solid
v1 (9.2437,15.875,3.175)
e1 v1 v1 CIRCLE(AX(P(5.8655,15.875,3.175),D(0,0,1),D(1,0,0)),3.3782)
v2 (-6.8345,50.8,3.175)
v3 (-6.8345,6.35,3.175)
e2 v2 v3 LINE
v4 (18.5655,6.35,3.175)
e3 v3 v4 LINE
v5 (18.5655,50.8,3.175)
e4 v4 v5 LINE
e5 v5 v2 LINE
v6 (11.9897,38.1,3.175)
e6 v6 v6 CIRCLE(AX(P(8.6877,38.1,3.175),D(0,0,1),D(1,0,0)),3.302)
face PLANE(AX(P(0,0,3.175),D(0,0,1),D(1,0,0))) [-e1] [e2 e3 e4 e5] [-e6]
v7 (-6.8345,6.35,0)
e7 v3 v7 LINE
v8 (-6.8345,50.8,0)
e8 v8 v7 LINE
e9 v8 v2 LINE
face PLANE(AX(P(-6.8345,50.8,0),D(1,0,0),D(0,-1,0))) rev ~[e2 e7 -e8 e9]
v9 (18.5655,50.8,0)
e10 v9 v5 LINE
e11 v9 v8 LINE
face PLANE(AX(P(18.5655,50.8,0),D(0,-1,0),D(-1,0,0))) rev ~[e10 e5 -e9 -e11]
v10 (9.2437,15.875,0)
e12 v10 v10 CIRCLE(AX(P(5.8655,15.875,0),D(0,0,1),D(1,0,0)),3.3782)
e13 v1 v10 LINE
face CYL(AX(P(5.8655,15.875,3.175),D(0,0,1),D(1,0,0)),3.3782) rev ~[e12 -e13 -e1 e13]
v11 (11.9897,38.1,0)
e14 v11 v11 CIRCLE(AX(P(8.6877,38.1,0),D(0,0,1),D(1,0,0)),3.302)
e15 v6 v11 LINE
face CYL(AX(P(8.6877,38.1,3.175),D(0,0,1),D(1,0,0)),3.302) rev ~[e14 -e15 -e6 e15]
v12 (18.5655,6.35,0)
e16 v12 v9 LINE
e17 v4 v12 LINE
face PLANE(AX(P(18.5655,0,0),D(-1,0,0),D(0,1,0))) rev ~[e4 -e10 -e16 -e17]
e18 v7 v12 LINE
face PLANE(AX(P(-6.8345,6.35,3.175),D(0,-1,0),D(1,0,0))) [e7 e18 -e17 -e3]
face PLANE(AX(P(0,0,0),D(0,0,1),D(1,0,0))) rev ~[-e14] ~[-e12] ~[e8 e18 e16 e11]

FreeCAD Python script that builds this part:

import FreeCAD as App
import Part
import Sketcher
from FreeCAD import Vector
Q = App.Units.Quantity


def add_polygon(sketch, points):
    """Adds a closed chain of lines whose ends are joined by coincident constraints."""
    first, n = sketch.GeometryCount, len(points)
    for a, b in zip(points, points[1:] + points[:1]):
        sketch.addGeometry(Part.LineSegment(App.Vector(*a, 0), App.Vector(*b, 0)), False)
    for i in range(n):
        sketch.addConstraint(Sketcher.Constraint("Coincident", first + i, 2, first + (i + 1) % n, 1))

doc = App.newDocument("Part")
params = doc.addObject("Spreadsheet::Sheet", "Params")
for row, (alias, value) in enumerate([
    ("sketch1_width", "1 in"),
    ("sketch1_height", "2 in"),
    ("pad1_length", "0.125 in"),
    ("sketch2_diameter", "0.26 in"),
    ("sketch2_diameter2", "0.266 in"),
    ("pocket1_length", "1 in"),
    ("sketch3_height", "0.25 in"),
    ("sketch3_width", "1 in"),
    ("pocket2_length", "1 in"),
], start=1):
    params.set(f"A{row}", alias)
    params.set(f"B{row}", "=" + value)
    params.setAlias(f"B{row}", alias)

body = doc.addObject("PartDesign::Body", "Body")

# Sketch on XY plane
sketch1 = body.newObject("Sketcher::SketchObject", "Sketch")
sketch1.AttachmentSupport = (doc.getObject("XY_Plane"), [""])
sketch1.MapMode = "FlatFace"
add_polygon(sketch1, [(-7, 0), (19, 0), (19, 51), (-7, 51)])  # lines 0-3
sketch1.addConstraint([
    Sketcher.Constraint("Horizontal", 0),
    Sketcher.Constraint("Vertical", 1),
    Sketcher.Constraint("Horizontal", 2),
    Sketcher.Constraint("Vertical", 3),
    Sketcher.Constraint("PointOnObject", 0, 2, -1),
    Sketcher.Constraint("DistanceX", 0, 1, 0, 2, Q("1 in")),
    Sketcher.Constraint("DistanceY", 1, 1, 1, 2, Q("2 in")),
    Sketcher.Constraint("DistanceX", -1, 1, 0, 2, 18.5655),
])
sketch1.setExpression("Constraints[9]", "Params.sketch1_width")
sketch1.setExpression("Constraints[10]", "Params.sketch1_height")
pad1 = body.newObject("PartDesign::Pad", "Pad")
pad1.Profile = sketch1
pad1.setExpression("Length", "Params.pad1_length")

# Sketch on XY plane
sketch2 = body.newObject("Sketcher::SketchObject", "Sketch001")
sketch2.AttachmentSupport = (doc.getObject("XY_Plane"), [""])
sketch2.MapMode = "FlatFace"
sketch2.AttachmentOffset = App.Placement(Vector(0, 0, 0.125 * 25.4), App.Rotation())
sketch2.addGeometry([
    Part.Circle(Vector(5.9, 15.9, 0), Vector(0, 0, 1), 3.4),
    Part.Circle(Vector(8.7, 38.1, 0), Vector(0, 0, 1), 3.3),
], False)
sketch2.addConstraint([
    Sketcher.Constraint("Diameter", 1, Q("0.26 in")),
    Sketcher.Constraint("Diameter", 0, Q("0.266 in")),
    Sketcher.Constraint("DistanceY", -1, 1, 1, 3, Q("1.5 in")),
    Sketcher.Constraint("DistanceY", -1, 1, 0, 3, Q("0.625 in")),
    Sketcher.Constraint("DistanceX", 0, 3, 1, 3, Q("0.1111 in")),
    Sketcher.Constraint("DistanceX", -1, 1, 0, 3, 5.8655),
])
sketch2.setExpression("Constraints[0]", "Params.sketch2_diameter")
sketch2.setExpression("Constraints[1]", "Params.sketch2_diameter2")
pocket1 = body.newObject("PartDesign::Pocket", "Pocket")
pocket1.Profile = sketch2
pocket1.setExpression("Length", "Params.pocket1_length")

# Sketch on XY plane
sketch3 = body.newObject("Sketcher::SketchObject", "Sketch002")
sketch3.AttachmentSupport = (doc.getObject("XY_Plane"), [""])
sketch3.MapMode = "FlatFace"
sketch3.AttachmentOffset = App.Placement(Vector(0, 0, 0.125 * 25.4), App.Rotation())
add_polygon(sketch3, [(-7, 6), (-7, 0), (19, 0), (19, 6)])  # lines 0-3
sketch3.addConstraint([
    Sketcher.Constraint("Vertical", 0),
    Sketcher.Constraint("Horizontal", 1),
    Sketcher.Constraint("Vertical", 2),
    Sketcher.Constraint("Horizontal", 3),
    Sketcher.Constraint("PointOnObject", 0, 2, -1),
    Sketcher.Constraint("DistanceY", 0, 2, 0, 1, Q("0.25 in")),
    Sketcher.Constraint("DistanceX", 1, 1, 1, 2, Q("1 in")),
    Sketcher.Constraint("DistanceX", 0, 2, -1, 1, 6.8345),
])
sketch3.setExpression("Constraints[9]", "Params.sketch3_height")
sketch3.setExpression("Constraints[10]", "Params.sketch3_width")
pocket2 = body.newObject("PartDesign::Pocket", "Pocket001")
pocket2.Profile = sketch3
pocket2.setExpression("Length", "Params.pocket2_length")

doc.recompute()
